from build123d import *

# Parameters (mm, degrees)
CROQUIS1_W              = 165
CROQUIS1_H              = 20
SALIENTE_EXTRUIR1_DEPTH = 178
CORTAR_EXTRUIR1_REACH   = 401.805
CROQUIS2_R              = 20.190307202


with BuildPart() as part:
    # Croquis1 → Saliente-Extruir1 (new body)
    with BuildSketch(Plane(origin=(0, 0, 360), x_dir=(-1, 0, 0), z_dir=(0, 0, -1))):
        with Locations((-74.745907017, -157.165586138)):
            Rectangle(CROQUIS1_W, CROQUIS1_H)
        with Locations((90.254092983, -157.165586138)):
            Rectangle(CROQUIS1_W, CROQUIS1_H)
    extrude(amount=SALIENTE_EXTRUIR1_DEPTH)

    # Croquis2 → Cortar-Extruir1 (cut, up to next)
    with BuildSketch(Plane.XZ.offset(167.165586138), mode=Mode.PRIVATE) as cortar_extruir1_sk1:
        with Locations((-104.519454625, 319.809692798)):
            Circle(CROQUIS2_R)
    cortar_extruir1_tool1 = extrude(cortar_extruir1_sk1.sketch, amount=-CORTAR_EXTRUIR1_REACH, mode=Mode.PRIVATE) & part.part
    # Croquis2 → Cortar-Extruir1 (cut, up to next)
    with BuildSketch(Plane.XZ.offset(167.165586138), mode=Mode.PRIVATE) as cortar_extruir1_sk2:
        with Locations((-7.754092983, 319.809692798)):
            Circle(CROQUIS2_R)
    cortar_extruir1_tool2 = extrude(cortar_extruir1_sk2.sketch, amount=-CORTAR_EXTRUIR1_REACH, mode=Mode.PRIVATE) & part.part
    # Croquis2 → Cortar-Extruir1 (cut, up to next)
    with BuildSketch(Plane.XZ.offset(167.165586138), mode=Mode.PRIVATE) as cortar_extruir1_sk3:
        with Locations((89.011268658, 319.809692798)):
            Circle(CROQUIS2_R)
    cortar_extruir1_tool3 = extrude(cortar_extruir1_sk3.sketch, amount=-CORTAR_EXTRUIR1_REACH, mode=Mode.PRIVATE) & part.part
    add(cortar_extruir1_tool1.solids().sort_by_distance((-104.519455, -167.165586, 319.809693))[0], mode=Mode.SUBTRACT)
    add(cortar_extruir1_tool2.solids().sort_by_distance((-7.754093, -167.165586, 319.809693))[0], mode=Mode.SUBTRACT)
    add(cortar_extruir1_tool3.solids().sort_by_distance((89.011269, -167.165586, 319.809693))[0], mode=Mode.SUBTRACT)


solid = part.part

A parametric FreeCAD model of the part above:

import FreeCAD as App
import Part
import Sketcher
from FreeCAD import Vector


def add_polygon(sketch, points):
    """Adds a closed chain of lines whose ends are joined by coincident constraints."""
    first, n = sketch.GeometryCount, len(points)
    for a, b in zip(points, points[1:] + points[:1]):
        sketch.addGeometry(Part.LineSegment(App.Vector(*a, 0), App.Vector(*b, 0)), False)
    for i in range(n):
        sketch.addConstraint(Sketcher.Constraint("Coincident", first + i, 2, first + (i + 1) % n, 1))

doc = App.newDocument("Part")
body = doc.addObject("PartDesign::Body", "Body")

sketch1 = body.newObject("Sketcher::SketchObject", "Sketch")
sketch1.AttachmentSupport = (doc.getObject("XY_Plane"), [""])
sketch1.MapMode = "FlatFace"
sketch1.AttachmentOffset = App.Placement(Vector(0, 0, 360), App.Rotation())
add_polygon(sketch1, [(157.245907, -147.165586), (157.245907, -167.165586), (-172.754093, -167.165586), (-172.754093, -147.165586)])
sketch1.addConstraint([
    Sketcher.Constraint("Vertical", 0),
    Sketcher.Constraint("Horizontal", 1),
    Sketcher.Constraint("Vertical", 2),
    Sketcher.Constraint("Horizontal", 3),
    Sketcher.Constraint("DistanceX", 1, 2, 1, 1, 330.0),
    Sketcher.Constraint("DistanceY", 0, 2, 0, 1, 20.0),
    Sketcher.Constraint("DistanceX", -1, 1, 0, 2, 157.245907),
    Sketcher.Constraint("DistanceY", 0, 2, -1, 1, 167.165586),
])
pad1 = body.newObject("PartDesign::Pad", "Pad")
pad1.Profile = sketch1
pad1.Length = 178
pad1.Reversed = True

sketch2 = body.newObject("Sketcher::SketchObject", "Sketch001")
sketch2.AttachmentSupport = (doc.getObject("XZ_Plane"), [""])
sketch2.MapMode = "FlatFace"
sketch2.AttachmentOffset = App.Placement(Vector(0, 0, 167.165586), App.Rotation())
sketch2.addGeometry(Part.Circle(Vector(-104.519455, 319.809693, 0), Vector(0, 0, 1), 20.190307), False)
sketch2.addConstraint([
    Sketcher.Constraint("Diameter", 0, 40.380614),
    Sketcher.Constraint("DistanceX", 0, 3, -1, 1, 104.519455),
    Sketcher.Constraint("DistanceY", -1, 1, 0, 3, 319.809693),
])
pocket1 = body.newObject("PartDesign::Pocket", "Pocket")
pocket1.Profile = sketch2
pocket1.Type = "UpToFirst"

sketch3 = body.newObject("Sketcher::SketchObject", "Sketch002")
sketch3.AttachmentSupport = (doc.getObject("XZ_Plane"), [""])
sketch3.MapMode = "FlatFace"
sketch3.AttachmentOffset = App.Placement(Vector(0, 0, 167.165586), App.Rotation())
sketch3.addGeometry(Part.Circle(Vector(-7.754093, 319.809693, 0), Vector(0, 0, 1), 20.190307), False)
sketch3.addConstraint([
    Sketcher.Constraint("Diameter", 0, 40.380614),
    Sketcher.Constraint("DistanceX", 0, 3, -1, 1, 7.754093),
    Sketcher.Constraint("DistanceY", -1, 1, 0, 3, 319.809693),
])
pocket2 = body.newObject("PartDesign::Pocket", "Pocket001")
pocket2.Profile = sketch3
pocket2.Type = "UpToFirst"

sketch4 = body.newObject("Sketcher::SketchObject", "Sketch003")
sketch4.AttachmentSupport = (doc.getObject("XZ_Plane"), [""])
sketch4.MapMode = "FlatFace"
sketch4.AttachmentOffset = App.Placement(Vector(0, 0, 167.165586), App.Rotation())
sketch4.addGeometry(Part.Circle(Vector(89.011269, 319.809693, 0), Vector(0, 0, 1), 20.190307), False)
sketch4.addConstraint([
    Sketcher.Constraint("Diameter", 0, 40.380614),
    Sketcher.Constraint("DistanceX", -1, 1, 0, 3, 89.011269),
    Sketcher.Constraint("DistanceY", -1, 1, 0, 3, 319.809693),
])
pocket3 = body.newObject("PartDesign::Pocket", "Pocket002")
pocket3.Profile = sketch4
pocket3.Type = "UpToFirst"

doc.recompute()
